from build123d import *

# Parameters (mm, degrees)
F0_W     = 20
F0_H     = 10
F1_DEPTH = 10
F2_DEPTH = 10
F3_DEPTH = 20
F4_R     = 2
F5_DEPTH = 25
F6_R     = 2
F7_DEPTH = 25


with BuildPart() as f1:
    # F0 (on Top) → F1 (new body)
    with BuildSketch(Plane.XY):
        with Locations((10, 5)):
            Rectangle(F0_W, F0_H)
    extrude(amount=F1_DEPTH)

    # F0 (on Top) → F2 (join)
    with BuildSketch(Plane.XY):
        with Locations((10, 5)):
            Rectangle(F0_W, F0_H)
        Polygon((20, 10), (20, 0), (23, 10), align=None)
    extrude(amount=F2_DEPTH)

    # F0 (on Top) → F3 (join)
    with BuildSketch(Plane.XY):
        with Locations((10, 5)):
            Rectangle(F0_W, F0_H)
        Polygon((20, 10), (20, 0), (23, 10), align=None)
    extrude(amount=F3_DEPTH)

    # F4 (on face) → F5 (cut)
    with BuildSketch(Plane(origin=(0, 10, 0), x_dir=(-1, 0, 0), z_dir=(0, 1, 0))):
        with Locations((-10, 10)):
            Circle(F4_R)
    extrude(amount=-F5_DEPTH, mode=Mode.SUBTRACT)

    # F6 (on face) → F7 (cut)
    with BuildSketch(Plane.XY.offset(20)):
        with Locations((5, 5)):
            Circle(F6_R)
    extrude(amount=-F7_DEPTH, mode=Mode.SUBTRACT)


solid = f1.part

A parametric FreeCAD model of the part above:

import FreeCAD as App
import Part
import Sketcher
Q = App.Units.Quantity

doc = App.newDocument("Part")
body = doc.addObject("PartDesign::Body", "Body")

# Sketch on XY plane
sketch1 = body.newObject("Sketcher::SketchObject", "Sketch")
sketch1.AttachmentSupport = (doc.getObject("XY_Plane"), [""])
sketch1.MapMode = "FlatFace"
sketch1.addGeometry([
    Part.LineSegment(App.Vector(0, 10, 0), App.Vector(0, 0, 0)),
    Part.LineSegment(App.Vector(0, 0, 0), App.Vector(20, 0, 0)),
    Part.LineSegment(App.Vector(20, 0, 0), App.Vector(20, 10, 0)),
    Part.LineSegment(App.Vector(20, 10, 0), App.Vector(0, 10, 0)),
], False)
sketch1.addConstraint([
    Sketcher.Constraint("Coincident", 0, 2, 1, 1),
    Sketcher.Constraint("Coincident", 1, 2, 2, 1),
    Sketcher.Constraint("Coincident", 2, 2, 3, 1),
    Sketcher.Constraint("Coincident", 3, 2, 0, 1),
    Sketcher.Constraint("Vertical", 0),
    Sketcher.Constraint("Horizontal", 1),
    Sketcher.Constraint("Vertical", 2),
    Sketcher.Constraint("Horizontal", 3),
    Sketcher.Constraint("Coincident", 0, 2, -1, 1),
    Sketcher.Constraint("DistanceX", 1, 1, 1, 2, Q("20 mm")),
    Sketcher.Constraint("DistanceY", 0, 2, 0, 1, Q("10 mm")),
])
pad1 = body.newObject("PartDesign::Pad", "Pad")
pad1.Profile = sketch1
pad1.Length = 10

# Sketch on XY plane
sketch2 = body.newObject("Sketcher::SketchObject", "Sketch001")
sketch2.AttachmentSupport = (doc.getObject("XY_Plane"), [""])
sketch2.MapMode = "FlatFace"
sketch2.addGeometry([
    Part.LineSegment(App.Vector(0, 10, 0), App.Vector(0, 0, 0)),
    Part.LineSegment(App.Vector(0, 0, 0), App.Vector(20, 0, 0)),
    Part.LineSegment(App.Vector(20, 0, 0), App.Vector(23, 10, 0)),
    Part.LineSegment(App.Vector(23, 10, 0), App.Vector(0, 10, 0)),
], False)
sketch2.addConstraint([
    Sketcher.Constraint("Coincident", 0, 2, 1, 1),
    Sketcher.Constraint("Coincident", 1, 2, 2, 1),
    Sketcher.Constraint("Coincident", 2, 2, 3, 1),
    Sketcher.Constraint("Coincident", 3, 2, 0, 1),
    Sketcher.Constraint("Vertical", 0),
    Sketcher.Constraint("Horizontal", 1),
    Sketcher.Constraint("Horizontal", 3),
    Sketcher.Constraint("Coincident", 0, 2, -1, 1),
    Sketcher.Constraint("DistanceX", 1, 1, 1, 2, Q("20 mm")),
    Sketcher.Constraint("DistanceX", 3, 2, 3, 1, Q("23 mm")),
    Sketcher.Constraint("DistanceY", 0, 2, 0, 1, Q("10 mm")),
])
pad2 = body.newObject("PartDesign::Pad", "Pad001")
pad2.Profile = sketch2
pad2.Length = 10

# Sketch on XY plane
sketch3 = body.newObject("Sketcher::SketchObject", "Sketch002")
sketch3.AttachmentSupport = (doc.getObject("XY_Plane"), [""])
sketch3.MapMode = "FlatFace"
sketch3.addGeometry([
    Part.LineSegment(App.Vector(0, 10, 0), App.Vector(0, 0, 0)),
    Part.LineSegment(App.Vector(0, 0, 0), App.Vector(20, 0, 0)),
    Part.LineSegment(App.Vector(20, 0, 0), App.Vector(23, 10, 0)),
    Part.LineSegment(App.Vector(23, 10, 0), App.Vector(0, 10, 0)),
], False)
sketch3.addConstraint([
    Sketcher.Constraint("Coincident", 0, 2, 1, 1),
    Sketcher.Constraint("Coincident", 1, 2, 2, 1),
    Sketcher.Constraint("Coincident", 2, 2, 3, 1),
    Sketcher.Constraint("Coincident", 3, 2, 0, 1),
    Sketcher.Constraint("Vertical", 0),
    Sketcher.Constraint("Horizontal", 1),
    Sketcher.Constraint("Horizontal", 3),
    Sketcher.Constraint("Coincident", 0, 2, -1, 1),
    Sketcher.Constraint("DistanceX", 1, 1, 1, 2, Q("20 mm")),
    Sketcher.Constraint("DistanceX", 3, 2, 3, 1, Q("23 mm")),
    Sketcher.Constraint("DistanceY", 0, 2, 0, 1, Q("10 mm")),
])
pad3 = body.newObject("PartDesign::Pad", "Pad002")
pad3.Profile = sketch3
pad3.Length = 20

# Sketch on XZ plane
sketch4 = body.newObject("Sketcher::SketchObject", "Sketch003")
sketch4.AttachmentSupport = (doc.getObject("XZ_Plane"), [""])
sketch4.MapMode = "FlatFace"
sketch4.AttachmentOffset = App.Placement(App.Vector(0, 0, -10), App.Rotation())
sketch4.addGeometry(Part.Circle(App.Vector(10, 10, 0), App.Vector(0, 0, 1), 2), False)
sketch4.addConstraint([
    Sketcher.Constraint("Diameter", 0, Q("4 mm")),
    Sketcher.Constraint("DistanceX", -1, 1, 0, 3, Q("10 mm")),
    Sketcher.Constraint("DistanceY", -1, 1, 0, 3, Q("10 mm")),
])
pocket1 = body.newObject("PartDesign::Pocket", "Pocket")
pocket1.Profile = sketch4
pocket1.Length = 25
pocket1.Reversed = True

# Sketch on XY plane
sketch5 = body.newObject("Sketcher::SketchObject", "Sketch004")
sketch5.AttachmentSupport = (doc.getObject("XY_Plane"), [""])
sketch5.MapMode = "FlatFace"
sketch5.AttachmentOffset = App.Placement(App.Vector(0, 0, 20), App.Rotation())
sketch5.addGeometry(Part.Circle(App.Vector(5, 5, 0), App.Vector(0, 0, 1), 2), False)
sketch5.addConstraint([
    Sketcher.Constraint("Diameter", 0, Q("4 mm")),
    Sketcher.Constraint("DistanceX", -1, 1, 0, 3, Q("5 mm")),
    Sketcher.Constraint("DistanceY", -1, 1, 0, 3, Q("5 mm")),
])
pocket2 = body.newObject("PartDesign::Pocket", "Pocket001")
pocket2.Profile = sketch5
pocket2.Length = 25

doc.recompute()
